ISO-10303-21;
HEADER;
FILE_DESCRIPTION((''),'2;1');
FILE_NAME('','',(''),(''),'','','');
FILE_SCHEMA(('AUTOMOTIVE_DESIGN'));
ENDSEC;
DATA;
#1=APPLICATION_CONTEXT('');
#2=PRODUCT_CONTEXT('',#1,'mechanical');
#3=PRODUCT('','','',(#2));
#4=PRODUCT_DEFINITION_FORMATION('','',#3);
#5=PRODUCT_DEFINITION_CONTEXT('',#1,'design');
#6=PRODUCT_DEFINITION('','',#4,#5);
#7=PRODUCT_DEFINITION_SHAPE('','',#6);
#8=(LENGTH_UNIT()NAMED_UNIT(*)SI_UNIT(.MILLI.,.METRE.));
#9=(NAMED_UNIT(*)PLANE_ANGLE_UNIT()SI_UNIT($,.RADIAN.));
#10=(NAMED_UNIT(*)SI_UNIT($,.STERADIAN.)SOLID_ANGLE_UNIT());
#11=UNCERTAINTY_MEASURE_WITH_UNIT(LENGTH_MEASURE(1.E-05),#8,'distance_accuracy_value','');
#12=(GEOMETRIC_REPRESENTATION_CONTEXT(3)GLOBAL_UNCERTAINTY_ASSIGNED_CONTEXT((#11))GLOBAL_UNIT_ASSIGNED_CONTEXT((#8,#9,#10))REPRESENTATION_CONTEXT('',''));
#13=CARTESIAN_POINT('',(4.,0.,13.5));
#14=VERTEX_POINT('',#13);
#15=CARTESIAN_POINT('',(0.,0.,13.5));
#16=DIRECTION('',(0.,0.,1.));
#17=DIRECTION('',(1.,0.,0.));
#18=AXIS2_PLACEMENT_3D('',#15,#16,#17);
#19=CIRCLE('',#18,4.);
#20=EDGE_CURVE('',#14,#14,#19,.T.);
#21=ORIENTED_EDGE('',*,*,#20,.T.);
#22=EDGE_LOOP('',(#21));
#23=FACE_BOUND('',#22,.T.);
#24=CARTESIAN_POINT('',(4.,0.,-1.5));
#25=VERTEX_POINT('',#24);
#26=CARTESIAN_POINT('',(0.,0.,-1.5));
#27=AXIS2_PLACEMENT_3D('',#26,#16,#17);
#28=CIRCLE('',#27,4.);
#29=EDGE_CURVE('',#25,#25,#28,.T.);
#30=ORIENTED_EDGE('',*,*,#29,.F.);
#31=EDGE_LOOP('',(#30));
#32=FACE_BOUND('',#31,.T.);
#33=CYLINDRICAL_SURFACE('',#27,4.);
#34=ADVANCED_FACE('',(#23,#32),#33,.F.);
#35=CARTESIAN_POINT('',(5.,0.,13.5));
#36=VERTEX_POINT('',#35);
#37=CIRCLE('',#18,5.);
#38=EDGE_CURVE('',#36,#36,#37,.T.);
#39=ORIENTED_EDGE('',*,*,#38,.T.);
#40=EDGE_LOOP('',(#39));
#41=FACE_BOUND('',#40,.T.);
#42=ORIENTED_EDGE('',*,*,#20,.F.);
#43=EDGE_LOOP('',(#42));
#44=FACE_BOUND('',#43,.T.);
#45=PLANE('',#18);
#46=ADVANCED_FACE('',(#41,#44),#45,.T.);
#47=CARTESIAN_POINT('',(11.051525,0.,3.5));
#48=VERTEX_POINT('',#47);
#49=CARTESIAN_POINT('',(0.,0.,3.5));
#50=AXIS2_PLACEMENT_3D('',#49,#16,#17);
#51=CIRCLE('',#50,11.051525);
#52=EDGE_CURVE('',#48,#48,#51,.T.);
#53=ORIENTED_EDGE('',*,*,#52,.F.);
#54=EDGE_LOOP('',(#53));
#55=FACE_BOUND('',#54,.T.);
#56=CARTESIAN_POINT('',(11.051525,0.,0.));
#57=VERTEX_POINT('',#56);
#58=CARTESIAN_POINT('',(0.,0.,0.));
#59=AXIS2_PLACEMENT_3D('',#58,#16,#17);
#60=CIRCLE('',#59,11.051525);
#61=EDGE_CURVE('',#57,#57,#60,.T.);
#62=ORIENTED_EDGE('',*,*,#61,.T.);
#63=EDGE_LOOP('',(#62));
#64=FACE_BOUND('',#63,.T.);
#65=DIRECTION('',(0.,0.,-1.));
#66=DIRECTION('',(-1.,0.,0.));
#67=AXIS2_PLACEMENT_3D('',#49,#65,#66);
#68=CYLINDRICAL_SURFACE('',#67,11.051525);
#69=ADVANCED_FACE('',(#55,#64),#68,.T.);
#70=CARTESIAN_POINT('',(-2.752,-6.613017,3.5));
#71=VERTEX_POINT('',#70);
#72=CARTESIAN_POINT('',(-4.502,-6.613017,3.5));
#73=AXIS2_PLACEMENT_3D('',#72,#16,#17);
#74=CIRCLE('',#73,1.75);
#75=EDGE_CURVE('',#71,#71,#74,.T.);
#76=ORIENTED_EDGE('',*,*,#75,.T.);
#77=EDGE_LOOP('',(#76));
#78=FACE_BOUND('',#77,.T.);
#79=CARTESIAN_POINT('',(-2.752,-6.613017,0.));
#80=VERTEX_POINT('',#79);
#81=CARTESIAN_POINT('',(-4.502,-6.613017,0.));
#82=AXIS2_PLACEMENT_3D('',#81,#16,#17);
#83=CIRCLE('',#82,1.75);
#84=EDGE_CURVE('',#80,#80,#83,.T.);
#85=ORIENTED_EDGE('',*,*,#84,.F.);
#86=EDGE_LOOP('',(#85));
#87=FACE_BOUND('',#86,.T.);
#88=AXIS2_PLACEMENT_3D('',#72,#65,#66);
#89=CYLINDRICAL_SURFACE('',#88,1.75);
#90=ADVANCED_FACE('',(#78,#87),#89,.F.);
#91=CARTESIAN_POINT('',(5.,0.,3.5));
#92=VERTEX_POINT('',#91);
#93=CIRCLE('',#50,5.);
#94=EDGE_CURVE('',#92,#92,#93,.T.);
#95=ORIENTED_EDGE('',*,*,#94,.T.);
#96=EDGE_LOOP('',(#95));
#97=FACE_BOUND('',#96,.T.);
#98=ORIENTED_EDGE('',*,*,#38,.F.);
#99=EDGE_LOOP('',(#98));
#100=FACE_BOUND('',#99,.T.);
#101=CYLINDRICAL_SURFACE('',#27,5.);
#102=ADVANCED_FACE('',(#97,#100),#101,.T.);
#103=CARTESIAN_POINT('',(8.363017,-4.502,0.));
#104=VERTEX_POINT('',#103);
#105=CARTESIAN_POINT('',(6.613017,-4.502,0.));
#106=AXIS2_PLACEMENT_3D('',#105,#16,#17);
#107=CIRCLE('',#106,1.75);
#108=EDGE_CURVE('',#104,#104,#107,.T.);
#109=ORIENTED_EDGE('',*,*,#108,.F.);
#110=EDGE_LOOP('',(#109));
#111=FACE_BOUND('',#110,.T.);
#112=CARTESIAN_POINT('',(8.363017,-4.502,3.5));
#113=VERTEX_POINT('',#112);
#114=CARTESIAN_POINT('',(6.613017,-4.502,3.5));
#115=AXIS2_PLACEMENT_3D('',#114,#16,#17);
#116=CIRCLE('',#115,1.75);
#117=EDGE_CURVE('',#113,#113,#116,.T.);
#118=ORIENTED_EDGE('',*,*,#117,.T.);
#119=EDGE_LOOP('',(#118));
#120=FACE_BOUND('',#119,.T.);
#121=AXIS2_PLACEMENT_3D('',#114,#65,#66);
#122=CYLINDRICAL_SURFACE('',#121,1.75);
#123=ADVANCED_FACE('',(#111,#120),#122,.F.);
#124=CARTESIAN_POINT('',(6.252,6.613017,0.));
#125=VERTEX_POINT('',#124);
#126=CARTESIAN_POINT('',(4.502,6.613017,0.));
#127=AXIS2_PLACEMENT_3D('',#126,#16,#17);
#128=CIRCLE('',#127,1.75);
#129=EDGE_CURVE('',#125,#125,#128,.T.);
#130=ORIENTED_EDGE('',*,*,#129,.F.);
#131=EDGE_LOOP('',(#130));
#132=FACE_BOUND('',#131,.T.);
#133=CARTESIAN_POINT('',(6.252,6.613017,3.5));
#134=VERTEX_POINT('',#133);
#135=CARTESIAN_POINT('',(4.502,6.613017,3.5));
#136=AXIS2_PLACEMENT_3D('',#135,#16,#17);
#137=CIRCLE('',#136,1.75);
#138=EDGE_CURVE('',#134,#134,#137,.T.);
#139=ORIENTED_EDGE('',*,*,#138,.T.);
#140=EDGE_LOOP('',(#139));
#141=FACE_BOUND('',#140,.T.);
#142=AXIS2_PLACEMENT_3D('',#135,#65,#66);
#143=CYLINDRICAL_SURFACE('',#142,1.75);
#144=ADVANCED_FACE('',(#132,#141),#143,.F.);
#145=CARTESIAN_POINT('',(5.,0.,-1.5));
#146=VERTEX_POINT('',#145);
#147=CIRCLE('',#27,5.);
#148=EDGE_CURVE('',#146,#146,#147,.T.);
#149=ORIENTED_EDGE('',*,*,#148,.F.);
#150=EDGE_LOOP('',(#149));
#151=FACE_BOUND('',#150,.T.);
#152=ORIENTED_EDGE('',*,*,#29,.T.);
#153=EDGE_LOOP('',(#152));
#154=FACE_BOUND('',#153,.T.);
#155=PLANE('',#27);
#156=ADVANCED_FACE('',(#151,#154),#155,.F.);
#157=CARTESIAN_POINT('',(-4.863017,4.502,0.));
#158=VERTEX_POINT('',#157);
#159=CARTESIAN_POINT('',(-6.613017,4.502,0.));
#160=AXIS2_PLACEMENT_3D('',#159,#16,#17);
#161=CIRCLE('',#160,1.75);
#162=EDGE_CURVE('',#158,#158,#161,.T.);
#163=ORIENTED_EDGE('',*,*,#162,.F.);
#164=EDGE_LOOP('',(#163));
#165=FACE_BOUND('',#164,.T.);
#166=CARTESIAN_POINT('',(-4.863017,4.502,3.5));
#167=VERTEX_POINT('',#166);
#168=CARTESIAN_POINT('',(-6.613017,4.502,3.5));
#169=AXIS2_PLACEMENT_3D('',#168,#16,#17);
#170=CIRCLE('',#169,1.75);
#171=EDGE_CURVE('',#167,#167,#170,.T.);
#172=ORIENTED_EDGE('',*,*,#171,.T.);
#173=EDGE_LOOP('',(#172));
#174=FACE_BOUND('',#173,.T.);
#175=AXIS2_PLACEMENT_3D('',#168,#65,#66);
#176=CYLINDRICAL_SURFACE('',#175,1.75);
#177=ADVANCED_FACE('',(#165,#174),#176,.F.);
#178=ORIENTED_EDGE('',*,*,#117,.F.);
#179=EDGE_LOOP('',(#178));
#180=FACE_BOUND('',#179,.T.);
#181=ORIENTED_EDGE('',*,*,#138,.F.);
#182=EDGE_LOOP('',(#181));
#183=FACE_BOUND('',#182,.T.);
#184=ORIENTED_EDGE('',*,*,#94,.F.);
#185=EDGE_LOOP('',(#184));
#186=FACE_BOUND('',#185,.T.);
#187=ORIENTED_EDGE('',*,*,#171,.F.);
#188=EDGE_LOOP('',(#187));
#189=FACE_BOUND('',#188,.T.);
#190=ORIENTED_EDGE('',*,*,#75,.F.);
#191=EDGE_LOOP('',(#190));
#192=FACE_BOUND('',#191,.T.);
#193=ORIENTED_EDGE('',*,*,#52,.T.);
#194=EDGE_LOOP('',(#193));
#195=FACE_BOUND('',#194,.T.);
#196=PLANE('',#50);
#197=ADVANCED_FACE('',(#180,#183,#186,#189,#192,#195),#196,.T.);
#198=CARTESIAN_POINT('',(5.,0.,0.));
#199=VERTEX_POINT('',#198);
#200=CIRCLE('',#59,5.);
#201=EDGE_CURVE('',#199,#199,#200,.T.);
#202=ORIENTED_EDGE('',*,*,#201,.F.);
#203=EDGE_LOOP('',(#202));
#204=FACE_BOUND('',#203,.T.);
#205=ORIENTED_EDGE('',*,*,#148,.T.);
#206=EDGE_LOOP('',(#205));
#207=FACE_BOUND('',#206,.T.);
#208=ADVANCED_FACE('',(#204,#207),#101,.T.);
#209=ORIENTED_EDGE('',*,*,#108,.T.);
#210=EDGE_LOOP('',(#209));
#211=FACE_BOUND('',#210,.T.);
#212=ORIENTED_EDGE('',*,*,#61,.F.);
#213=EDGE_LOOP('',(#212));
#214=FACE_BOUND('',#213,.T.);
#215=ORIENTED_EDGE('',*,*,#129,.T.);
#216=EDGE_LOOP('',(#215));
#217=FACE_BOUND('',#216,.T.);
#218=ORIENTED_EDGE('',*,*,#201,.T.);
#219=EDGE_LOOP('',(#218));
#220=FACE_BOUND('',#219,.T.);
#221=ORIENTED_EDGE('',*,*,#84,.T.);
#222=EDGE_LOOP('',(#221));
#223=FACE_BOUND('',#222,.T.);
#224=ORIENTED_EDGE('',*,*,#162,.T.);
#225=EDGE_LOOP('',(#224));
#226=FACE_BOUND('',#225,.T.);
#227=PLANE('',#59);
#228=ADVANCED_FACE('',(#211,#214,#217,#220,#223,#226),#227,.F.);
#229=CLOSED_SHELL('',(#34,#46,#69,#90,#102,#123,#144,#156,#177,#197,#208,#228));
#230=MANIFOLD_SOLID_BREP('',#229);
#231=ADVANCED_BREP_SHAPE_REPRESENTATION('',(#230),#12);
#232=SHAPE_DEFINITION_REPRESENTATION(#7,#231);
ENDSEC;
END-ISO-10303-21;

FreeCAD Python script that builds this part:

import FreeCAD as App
import Part
import Sketcher

V = App.Vector
Q = App.Units.Quantity

doc = App.newDocument("Part")
params = doc.addObject("Spreadsheet::Sheet", "Params")
for row, (alias, value) in enumerate([
    ("sketch1_diameter", "10 mm"),
    ("sketch1_diameter2", "3.5 mm"),
    ("pad1_length", "3.5 mm"),
    ("sketch2_diameter", "10 mm"),
    ("sketch2_diameter2", "8 mm"),
    ("pad2_length", "13.5 mm"),
    ("pad2_length2", "1.5 mm"),
], start=1):
    params.set(f"A{row}", alias)
    params.set(f"B{row}", "=" + value)
    params.setAlias(f"B{row}", alias)

body = doc.addObject("PartDesign::Body", "Body")

# Sketch on XY plane
sketch1 = doc.addObject("Sketcher::SketchObject", "Sketch")
body.addObject(sketch1)
sketch1.AttachmentSupport = (doc.XY_Plane, [""])
sketch1.MapMode = "FlatFace"
sketch1.addGeometry(Part.Circle(V(0, 0, 0), V(0, 0, 1), 11.1), False)
sketch1.addGeometry(Part.Circle(V(-4.5, -6.6, 0), V(0, 0, 1), 1.8), False)
sketch1.addGeometry(Part.Circle(V(6.6, -4.5, 0), V(0, 0, 1), 1.8), False)
sketch1.addGeometry(Part.Circle(V(-6.6, 4.5, 0), V(0, 0, 1), 1.8), False)
sketch1.addGeometry(Part.Circle(V(0, 0, 0), V(0, 0, 1), 5), False)
sketch1.addGeometry(Part.Circle(V(4.5, 6.6, 0), V(0, 0, 1), 1.8), False)
sketch1.addConstraint(Sketcher.Constraint("Coincident", 0, 3, -1, 1))
sketch1.addConstraint(Sketcher.Constraint("Coincident", 4, 3, -1, 1))
sketch1.addConstraint(Sketcher.Constraint("Equal", 1, 2))
sketch1.addConstraint(Sketcher.Constraint("Equal", 2, 3))
sketch1.addConstraint(Sketcher.Constraint("Equal", 3, 5))
sketch1.addConstraint(Sketcher.Constraint("Symmetric", 2, 3, 3, 3, -1, 1))
sketch1.addConstraint(Sketcher.Constraint("Symmetric", 1, 3, 5, 3, -1, 1))
sketch1.addConstraint(Sketcher.Constraint("Diameter", 4, Q("10 mm")))
sketch1.addConstraint(Sketcher.Constraint("Diameter", 1, Q("3.5 mm")))
sketch1.addConstraint(Sketcher.Constraint("Diameter", 0, Q("22.103051 mm")))
sketch1.addConstraint(Sketcher.Constraint("DistanceX", 1, 3, -1, 1, Q("4.502 mm")))
sketch1.addConstraint(Sketcher.Constraint("DistanceY", 2, 3, -1, 1, Q("4.502 mm")))
sketch1.addConstraint(Sketcher.Constraint("DistanceY", 1, 3, -1, 1, Q("6.613017 mm")))
sketch1.addConstraint(Sketcher.Constraint("DistanceX", -1, 1, 2, 3, Q("6.613017 mm")))
sketch1.setExpression("Constraints[7]", "Params.sketch1_diameter")
sketch1.setExpression("Constraints[8]", "Params.sketch1_diameter2")
pad1 = doc.addObject("PartDesign::Pad", "Pad")
body.addObject(pad1)
pad1.Profile = sketch1
pad1.setExpression("Length", "Params.pad1_length")

# Sketch on XY plane
sketch2 = doc.addObject("Sketcher::SketchObject", "Sketch001")
body.addObject(sketch2)
sketch2.AttachmentSupport = (doc.XY_Plane, [""])
sketch2.MapMode = "FlatFace"
sketch2.addGeometry(Part.Circle(V(0, 0, 0), V(0, 0, 1), 5), False)
sketch2.addGeometry(Part.Circle(V(0, 0, 0), V(0, 0, 1), 4), False)
sketch2.addConstraint(Sketcher.Constraint("Coincident", 0, 3, -1, 1))
sketch2.addConstraint(Sketcher.Constraint("Coincident", 1, 3, -1, 1))
sketch2.addConstraint(Sketcher.Constraint("Diameter", 0, Q("10 mm")))
sketch2.addConstraint(Sketcher.Constraint("Diameter", 1, Q("8 mm")))
sketch2.setExpression("Constraints[2]", "Params.sketch2_diameter")
sketch2.setExpression("Constraints[3]", "Params.sketch2_diameter2")
pad2 = doc.addObject("PartDesign::Pad", "Pad001")
body.addObject(pad2)
pad2.Profile = sketch2
pad2.Type = "TwoLengths"
pad2.setExpression("Length", "Params.pad2_length")
pad2.setExpression("Length2", "Params.pad2_length2")

doc.recompute()
